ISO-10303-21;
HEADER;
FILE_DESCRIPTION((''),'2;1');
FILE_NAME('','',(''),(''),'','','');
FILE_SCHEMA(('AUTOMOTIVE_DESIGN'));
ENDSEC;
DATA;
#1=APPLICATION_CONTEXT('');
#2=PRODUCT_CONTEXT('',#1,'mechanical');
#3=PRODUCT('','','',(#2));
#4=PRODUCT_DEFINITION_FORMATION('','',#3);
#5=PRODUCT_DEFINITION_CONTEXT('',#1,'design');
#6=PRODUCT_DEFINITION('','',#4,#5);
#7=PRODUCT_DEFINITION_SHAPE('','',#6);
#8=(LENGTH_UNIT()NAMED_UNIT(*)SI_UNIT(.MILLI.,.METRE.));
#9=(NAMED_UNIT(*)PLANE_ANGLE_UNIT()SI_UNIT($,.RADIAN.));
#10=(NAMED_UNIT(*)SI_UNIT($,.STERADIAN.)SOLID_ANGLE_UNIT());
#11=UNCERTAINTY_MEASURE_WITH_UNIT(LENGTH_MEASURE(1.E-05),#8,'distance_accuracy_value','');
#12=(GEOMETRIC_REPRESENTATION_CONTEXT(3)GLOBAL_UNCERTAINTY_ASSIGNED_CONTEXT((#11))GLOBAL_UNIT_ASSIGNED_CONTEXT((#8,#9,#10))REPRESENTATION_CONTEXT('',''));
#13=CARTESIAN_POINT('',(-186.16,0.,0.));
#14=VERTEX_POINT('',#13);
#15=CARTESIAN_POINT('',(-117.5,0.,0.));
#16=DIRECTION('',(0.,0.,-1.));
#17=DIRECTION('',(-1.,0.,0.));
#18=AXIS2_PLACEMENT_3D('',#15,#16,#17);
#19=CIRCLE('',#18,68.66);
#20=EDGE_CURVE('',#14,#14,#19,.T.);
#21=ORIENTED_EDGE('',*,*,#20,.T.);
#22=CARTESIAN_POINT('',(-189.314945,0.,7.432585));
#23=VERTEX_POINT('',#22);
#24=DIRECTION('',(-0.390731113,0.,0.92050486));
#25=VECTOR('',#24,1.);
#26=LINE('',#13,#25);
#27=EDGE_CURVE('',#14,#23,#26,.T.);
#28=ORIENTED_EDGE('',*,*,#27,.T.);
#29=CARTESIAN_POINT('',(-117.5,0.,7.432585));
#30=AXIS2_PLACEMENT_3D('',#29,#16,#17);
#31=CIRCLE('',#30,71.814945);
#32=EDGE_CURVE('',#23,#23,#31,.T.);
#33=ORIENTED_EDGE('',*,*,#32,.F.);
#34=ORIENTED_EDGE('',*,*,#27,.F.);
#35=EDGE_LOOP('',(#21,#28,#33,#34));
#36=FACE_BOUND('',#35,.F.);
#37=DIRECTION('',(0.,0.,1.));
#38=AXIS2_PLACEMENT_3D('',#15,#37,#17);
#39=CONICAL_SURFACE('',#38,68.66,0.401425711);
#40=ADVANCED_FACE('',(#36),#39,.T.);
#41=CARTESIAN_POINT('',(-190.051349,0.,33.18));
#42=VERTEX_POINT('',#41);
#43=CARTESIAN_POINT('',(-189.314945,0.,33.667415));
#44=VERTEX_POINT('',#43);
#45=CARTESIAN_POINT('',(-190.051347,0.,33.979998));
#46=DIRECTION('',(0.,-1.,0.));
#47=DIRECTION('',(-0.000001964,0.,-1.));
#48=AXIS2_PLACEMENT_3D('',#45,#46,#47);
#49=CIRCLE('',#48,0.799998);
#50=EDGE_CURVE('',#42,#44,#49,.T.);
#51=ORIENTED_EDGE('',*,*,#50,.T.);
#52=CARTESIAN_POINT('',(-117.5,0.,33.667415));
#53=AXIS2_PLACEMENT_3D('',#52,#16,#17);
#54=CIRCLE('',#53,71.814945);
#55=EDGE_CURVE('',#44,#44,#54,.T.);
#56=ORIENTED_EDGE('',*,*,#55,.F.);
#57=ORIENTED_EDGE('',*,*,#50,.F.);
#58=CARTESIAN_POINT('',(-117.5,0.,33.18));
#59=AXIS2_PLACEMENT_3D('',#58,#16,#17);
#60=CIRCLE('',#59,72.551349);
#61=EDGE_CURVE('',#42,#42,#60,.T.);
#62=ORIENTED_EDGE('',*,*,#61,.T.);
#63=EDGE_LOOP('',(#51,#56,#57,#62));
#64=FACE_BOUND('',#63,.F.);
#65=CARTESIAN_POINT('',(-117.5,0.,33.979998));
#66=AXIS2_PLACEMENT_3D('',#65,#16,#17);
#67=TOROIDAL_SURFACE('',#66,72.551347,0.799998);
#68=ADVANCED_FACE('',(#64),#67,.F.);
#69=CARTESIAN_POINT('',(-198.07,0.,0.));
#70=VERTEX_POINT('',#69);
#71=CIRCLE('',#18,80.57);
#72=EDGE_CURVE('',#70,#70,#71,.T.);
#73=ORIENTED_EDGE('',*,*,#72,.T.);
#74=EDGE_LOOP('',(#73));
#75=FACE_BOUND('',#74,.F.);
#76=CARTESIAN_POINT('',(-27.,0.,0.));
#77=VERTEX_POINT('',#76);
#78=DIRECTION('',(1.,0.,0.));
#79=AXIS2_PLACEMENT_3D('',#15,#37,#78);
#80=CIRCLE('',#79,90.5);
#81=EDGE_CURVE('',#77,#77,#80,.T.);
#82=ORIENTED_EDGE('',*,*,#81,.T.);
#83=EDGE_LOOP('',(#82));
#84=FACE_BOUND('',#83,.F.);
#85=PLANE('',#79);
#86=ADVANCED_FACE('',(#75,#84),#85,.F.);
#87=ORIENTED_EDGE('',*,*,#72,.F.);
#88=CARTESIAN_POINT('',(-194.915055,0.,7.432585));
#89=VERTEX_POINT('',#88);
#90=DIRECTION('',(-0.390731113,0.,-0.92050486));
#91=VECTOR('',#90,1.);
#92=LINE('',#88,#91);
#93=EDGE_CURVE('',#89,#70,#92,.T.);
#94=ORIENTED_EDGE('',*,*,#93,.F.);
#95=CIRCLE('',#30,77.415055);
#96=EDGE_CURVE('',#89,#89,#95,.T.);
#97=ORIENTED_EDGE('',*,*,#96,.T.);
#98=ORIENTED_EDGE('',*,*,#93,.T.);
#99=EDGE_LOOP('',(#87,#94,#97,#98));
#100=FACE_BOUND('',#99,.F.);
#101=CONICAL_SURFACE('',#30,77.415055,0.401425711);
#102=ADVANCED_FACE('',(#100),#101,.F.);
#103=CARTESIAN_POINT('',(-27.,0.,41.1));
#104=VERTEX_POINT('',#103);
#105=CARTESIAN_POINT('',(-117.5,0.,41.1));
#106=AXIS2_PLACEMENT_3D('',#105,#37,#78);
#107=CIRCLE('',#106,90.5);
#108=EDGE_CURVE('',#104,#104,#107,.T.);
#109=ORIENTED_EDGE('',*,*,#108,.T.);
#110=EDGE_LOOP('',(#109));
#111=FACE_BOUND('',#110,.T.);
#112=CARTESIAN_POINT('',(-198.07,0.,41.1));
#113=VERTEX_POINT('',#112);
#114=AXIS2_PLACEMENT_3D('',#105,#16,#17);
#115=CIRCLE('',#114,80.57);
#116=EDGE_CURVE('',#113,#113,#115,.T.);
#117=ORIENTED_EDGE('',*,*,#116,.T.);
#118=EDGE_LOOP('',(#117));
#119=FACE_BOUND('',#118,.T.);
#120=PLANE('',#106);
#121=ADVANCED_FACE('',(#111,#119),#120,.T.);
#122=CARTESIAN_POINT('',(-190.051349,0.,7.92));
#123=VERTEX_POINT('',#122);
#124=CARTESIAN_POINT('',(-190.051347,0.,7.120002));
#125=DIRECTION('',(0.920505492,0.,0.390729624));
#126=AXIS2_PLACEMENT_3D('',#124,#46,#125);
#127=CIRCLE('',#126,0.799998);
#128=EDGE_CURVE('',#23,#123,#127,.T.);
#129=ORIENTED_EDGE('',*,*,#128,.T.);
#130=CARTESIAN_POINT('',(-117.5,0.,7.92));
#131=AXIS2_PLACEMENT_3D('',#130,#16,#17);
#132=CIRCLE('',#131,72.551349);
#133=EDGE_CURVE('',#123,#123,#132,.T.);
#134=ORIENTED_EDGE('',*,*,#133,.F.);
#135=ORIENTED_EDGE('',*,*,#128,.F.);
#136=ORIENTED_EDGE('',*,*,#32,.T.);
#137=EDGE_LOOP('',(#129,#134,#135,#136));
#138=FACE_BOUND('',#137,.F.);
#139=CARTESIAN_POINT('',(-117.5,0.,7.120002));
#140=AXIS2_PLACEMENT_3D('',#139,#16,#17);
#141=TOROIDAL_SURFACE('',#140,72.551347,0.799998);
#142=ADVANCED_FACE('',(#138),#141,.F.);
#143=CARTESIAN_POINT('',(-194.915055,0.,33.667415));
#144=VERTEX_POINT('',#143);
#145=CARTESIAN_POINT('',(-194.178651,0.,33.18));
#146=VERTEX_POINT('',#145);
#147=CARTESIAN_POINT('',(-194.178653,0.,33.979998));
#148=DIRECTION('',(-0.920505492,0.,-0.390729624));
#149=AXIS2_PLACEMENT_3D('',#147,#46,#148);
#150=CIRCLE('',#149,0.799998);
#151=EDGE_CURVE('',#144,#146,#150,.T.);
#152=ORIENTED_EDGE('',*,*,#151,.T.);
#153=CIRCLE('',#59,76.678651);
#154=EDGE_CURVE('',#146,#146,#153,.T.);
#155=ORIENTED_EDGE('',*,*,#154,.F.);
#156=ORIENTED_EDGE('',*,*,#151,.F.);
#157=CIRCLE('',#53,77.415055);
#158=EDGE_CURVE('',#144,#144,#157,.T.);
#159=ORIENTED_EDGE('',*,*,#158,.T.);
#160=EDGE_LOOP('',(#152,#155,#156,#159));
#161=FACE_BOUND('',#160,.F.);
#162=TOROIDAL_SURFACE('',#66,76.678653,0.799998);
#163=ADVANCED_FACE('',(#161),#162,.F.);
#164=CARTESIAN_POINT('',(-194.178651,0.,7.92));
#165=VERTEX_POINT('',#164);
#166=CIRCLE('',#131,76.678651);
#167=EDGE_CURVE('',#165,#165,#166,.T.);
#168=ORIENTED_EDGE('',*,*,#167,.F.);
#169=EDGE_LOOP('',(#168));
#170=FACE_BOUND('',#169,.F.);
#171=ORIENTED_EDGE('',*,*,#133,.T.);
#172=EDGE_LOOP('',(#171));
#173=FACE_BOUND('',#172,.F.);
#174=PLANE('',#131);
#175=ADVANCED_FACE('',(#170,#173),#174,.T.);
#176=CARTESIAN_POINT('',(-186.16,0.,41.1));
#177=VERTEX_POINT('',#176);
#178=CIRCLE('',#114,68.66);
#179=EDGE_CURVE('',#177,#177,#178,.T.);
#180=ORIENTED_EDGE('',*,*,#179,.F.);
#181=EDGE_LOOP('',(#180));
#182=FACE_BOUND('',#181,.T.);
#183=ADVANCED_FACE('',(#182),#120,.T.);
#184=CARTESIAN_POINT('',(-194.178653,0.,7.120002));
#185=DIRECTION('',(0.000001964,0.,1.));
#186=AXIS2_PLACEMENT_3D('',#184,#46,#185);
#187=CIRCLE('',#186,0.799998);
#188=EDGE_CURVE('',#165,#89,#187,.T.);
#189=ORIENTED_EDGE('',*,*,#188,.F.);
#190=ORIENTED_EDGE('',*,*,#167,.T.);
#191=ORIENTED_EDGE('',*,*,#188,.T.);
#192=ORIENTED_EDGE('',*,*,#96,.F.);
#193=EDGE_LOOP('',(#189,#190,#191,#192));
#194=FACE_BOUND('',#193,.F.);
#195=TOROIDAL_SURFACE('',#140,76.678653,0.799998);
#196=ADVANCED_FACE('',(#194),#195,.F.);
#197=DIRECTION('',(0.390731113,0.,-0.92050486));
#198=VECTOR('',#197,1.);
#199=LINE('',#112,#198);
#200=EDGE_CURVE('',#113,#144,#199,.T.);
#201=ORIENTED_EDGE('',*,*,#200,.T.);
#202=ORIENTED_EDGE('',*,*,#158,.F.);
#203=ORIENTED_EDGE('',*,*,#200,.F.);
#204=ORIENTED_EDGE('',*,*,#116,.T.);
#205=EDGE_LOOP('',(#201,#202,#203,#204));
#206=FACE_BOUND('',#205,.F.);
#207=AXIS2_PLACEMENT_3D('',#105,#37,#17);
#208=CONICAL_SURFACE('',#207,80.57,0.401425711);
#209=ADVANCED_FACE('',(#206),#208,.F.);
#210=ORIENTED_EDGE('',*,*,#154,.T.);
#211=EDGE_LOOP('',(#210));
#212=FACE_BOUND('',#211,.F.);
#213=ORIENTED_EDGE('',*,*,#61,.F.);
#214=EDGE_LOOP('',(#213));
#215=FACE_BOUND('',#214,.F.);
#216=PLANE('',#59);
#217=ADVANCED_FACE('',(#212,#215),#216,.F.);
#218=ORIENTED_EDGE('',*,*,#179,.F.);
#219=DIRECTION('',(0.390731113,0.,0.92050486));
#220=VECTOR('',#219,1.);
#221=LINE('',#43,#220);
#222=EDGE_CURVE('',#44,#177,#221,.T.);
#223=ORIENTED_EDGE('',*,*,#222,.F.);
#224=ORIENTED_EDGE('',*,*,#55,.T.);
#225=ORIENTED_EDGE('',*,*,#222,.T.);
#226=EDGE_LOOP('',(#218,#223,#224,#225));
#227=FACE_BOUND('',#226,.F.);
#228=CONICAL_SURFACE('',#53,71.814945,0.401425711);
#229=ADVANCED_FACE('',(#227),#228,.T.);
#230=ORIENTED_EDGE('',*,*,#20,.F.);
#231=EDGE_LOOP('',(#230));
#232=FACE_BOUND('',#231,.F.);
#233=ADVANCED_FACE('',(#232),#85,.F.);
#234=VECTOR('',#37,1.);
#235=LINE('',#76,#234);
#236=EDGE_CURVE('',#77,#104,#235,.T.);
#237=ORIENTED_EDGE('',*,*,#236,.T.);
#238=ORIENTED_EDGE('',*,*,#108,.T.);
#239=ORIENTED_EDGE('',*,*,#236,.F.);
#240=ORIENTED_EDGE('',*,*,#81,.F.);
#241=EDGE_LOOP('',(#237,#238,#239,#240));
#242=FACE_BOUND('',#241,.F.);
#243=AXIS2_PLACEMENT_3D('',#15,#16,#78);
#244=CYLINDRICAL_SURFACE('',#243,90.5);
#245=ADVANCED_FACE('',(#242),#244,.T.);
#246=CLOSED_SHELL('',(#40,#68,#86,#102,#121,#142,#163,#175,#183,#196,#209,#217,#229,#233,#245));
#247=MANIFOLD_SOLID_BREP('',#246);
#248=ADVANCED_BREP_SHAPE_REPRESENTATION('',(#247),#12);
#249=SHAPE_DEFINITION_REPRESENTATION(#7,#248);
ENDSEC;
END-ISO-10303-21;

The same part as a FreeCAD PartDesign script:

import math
import FreeCAD as App
import Part
import Sketcher
from FreeCAD import Vector
Q = App.Units.Quantity

doc = App.newDocument("Part")
body = doc.addObject("PartDesign::Body", "Body")

# Sketch on XY plane
sketch1 = body.newObject("Sketcher::SketchObject", "Sketch")
sketch1.AttachmentSupport = (doc.getObject("XY_Plane"), [""])
sketch1.MapMode = "FlatFace"
sketch1.addGeometry(Part.Circle(Vector(-117.5, 0, 0), Vector(0, 0, 1), 90.5), False)
sketch1.addConstraint([
    Sketcher.Constraint("PointOnObject", 0, 3, -1),
    Sketcher.Constraint("Diameter", 0, Q("181 mm")),
    Sketcher.Constraint("DistanceX", 0, 3, -1, 1, Q("117.5 mm")),
])
pad1 = body.newObject("PartDesign::Pad", "Pad")
pad1.Profile = sketch1
pad1.Length = 41.1

# Sketch on XZ plane
sketch2 = body.newObject("Sketcher::SketchObject", "Sketch001")
sketch2.AttachmentSupport = (doc.getObject("XZ_Plane"), [""])
sketch2.MapMode = "FlatFace"
sketch2.addGeometry([
    Part.LineSegment(Vector(-189.314945, 33.667415, 0), Vector(-186.16, 41.1, 0)),  # 0
    Part.LineSegment(Vector(-186.16, 41.1, 0), Vector(-198.07, 41.1, 0)),  # 1
    Part.LineSegment(Vector(-198.07, 41.1, 0), Vector(-194.915055, 33.667415, 0)),  # 2
    Part.ArcOfCircle(Part.Circle(Vector(-194.178653, 33.979998, 0), Vector(0, 0, 1), 0.799998), math.radians(-157.000094), math.radians(-89.999887)),  # 3
    Part.LineSegment(Vector(-194.178651, 33.18, 0), Vector(-190.051349, 33.18, 0)),  # 4
    Part.ArcOfCircle(Part.Circle(Vector(-190.051347, 33.979998, 0), Vector(0, 0, 1), 0.799998), math.radians(-90.000113), math.radians(-22.999906)),  # 5
    Part.ArcOfCircle(Part.Circle(Vector(-190.051347, 7.120002, 0), Vector(0, 0, 1), 0.799998), math.radians(22.999906), math.radians(90.000113)),  # 6
    Part.LineSegment(Vector(-190.051349, 7.92, 0), Vector(-194.178651, 7.92, 0)),  # 7
    Part.ArcOfCircle(Part.Circle(Vector(-194.178653, 7.120002, 0), Vector(0, 0, 1), 0.799998), math.radians(89.999887), math.radians(157.000094)),  # 8
    Part.LineSegment(Vector(-194.915055, 7.432585, 0), Vector(-198.07, 0, 0)),  # 9
    Part.LineSegment(Vector(-198.07, 0, 0), Vector(-186.16, 0, 0)),  # 10
    Part.LineSegment(Vector(-186.16, 0, 0), Vector(-189.314945, 7.432585, 0)),  # 11
], False)
sketch2.addGeometry(Part.LineSegment(Vector(-117.5, 41.1, 0), Vector(-117.5, 0, 0)), True)  # axis
sketch2.addConstraint([
    Sketcher.Constraint("Coincident", 0, 2, 1, 1),
    Sketcher.Constraint("Coincident", 1, 2, 2, 1),
    Sketcher.Constraint("Tangent", 2, 2, 3, 1),
    Sketcher.Constraint("Tangent", 3, 2, 4, 1),
    Sketcher.Constraint("Tangent", 4, 2, 5, 1),
    Sketcher.Constraint("Tangent", 5, 2, 0, 1),
    Sketcher.Constraint("Tangent", 6, 2, 7, 1),
    Sketcher.Constraint("Tangent", 7, 2, 8, 1),
    Sketcher.Constraint("Tangent", 8, 2, 9, 1),
    Sketcher.Constraint("Coincident", 9, 2, 10, 1),
    Sketcher.Constraint("Coincident", 10, 2, 11, 1),
    Sketcher.Constraint("Tangent", 11, 2, 6, 1),
    Sketcher.Constraint("Horizontal", 1),
    Sketcher.Constraint("Horizontal", 4),
    Sketcher.Constraint("Horizontal", 7),
    Sketcher.Constraint("Horizontal", 10),
    Sketcher.Constraint("Vertical", 12),
    Sketcher.Constraint("Equal", 3, 5),
    Sketcher.Constraint("Equal", 5, 6),
    Sketcher.Constraint("Equal", 6, 8),
    Sketcher.Constraint("PointOnObject", 9, 2, -1),
    Sketcher.Constraint("PointOnObject", 12, 2, -1),
    Sketcher.Constraint("Parallel", 0, 9),
    Sketcher.Constraint("Parallel", 2, 11),
    Sketcher.Constraint("Horizontal", 2, 2, 5, 2),
    Sketcher.Constraint("Horizontal", 1, 2, 12, 1),
    Sketcher.Constraint("Vertical", 5, 3, 6, 3),
    Sketcher.Constraint("Vertical", 3, 3, 8, 3),
    Sketcher.Constraint("Vertical", 1, 2, 9, 2),
    Sketcher.Constraint("Angle", 0, Q("67.000001 deg")),
    Sketcher.Constraint("DistanceY", 12, 2, 12, 1, Q("41.1 mm")),
    Sketcher.Constraint("DistanceX", 1, 2, 1, 1, Q("11.91 mm")),
    Sketcher.Constraint("DistanceX", 12, 1, -1, 1, Q("117.5 mm")),
    Sketcher.Constraint("DistanceX", 0, 2, -1, 1, Q("186.16 mm")),
    Sketcher.Constraint("DistanceY", -1, 1, 3, 2, Q("33.18 mm")),
    Sketcher.Constraint("Radius", 3, Q("0.799998 mm")),
])
groove = body.newObject("PartDesign::Groove", "Groove")
groove.Profile = sketch2
groove.ReferenceAxis = (sketch2, ["Axis0"])
groove.Angle = 360

doc.recompute()
